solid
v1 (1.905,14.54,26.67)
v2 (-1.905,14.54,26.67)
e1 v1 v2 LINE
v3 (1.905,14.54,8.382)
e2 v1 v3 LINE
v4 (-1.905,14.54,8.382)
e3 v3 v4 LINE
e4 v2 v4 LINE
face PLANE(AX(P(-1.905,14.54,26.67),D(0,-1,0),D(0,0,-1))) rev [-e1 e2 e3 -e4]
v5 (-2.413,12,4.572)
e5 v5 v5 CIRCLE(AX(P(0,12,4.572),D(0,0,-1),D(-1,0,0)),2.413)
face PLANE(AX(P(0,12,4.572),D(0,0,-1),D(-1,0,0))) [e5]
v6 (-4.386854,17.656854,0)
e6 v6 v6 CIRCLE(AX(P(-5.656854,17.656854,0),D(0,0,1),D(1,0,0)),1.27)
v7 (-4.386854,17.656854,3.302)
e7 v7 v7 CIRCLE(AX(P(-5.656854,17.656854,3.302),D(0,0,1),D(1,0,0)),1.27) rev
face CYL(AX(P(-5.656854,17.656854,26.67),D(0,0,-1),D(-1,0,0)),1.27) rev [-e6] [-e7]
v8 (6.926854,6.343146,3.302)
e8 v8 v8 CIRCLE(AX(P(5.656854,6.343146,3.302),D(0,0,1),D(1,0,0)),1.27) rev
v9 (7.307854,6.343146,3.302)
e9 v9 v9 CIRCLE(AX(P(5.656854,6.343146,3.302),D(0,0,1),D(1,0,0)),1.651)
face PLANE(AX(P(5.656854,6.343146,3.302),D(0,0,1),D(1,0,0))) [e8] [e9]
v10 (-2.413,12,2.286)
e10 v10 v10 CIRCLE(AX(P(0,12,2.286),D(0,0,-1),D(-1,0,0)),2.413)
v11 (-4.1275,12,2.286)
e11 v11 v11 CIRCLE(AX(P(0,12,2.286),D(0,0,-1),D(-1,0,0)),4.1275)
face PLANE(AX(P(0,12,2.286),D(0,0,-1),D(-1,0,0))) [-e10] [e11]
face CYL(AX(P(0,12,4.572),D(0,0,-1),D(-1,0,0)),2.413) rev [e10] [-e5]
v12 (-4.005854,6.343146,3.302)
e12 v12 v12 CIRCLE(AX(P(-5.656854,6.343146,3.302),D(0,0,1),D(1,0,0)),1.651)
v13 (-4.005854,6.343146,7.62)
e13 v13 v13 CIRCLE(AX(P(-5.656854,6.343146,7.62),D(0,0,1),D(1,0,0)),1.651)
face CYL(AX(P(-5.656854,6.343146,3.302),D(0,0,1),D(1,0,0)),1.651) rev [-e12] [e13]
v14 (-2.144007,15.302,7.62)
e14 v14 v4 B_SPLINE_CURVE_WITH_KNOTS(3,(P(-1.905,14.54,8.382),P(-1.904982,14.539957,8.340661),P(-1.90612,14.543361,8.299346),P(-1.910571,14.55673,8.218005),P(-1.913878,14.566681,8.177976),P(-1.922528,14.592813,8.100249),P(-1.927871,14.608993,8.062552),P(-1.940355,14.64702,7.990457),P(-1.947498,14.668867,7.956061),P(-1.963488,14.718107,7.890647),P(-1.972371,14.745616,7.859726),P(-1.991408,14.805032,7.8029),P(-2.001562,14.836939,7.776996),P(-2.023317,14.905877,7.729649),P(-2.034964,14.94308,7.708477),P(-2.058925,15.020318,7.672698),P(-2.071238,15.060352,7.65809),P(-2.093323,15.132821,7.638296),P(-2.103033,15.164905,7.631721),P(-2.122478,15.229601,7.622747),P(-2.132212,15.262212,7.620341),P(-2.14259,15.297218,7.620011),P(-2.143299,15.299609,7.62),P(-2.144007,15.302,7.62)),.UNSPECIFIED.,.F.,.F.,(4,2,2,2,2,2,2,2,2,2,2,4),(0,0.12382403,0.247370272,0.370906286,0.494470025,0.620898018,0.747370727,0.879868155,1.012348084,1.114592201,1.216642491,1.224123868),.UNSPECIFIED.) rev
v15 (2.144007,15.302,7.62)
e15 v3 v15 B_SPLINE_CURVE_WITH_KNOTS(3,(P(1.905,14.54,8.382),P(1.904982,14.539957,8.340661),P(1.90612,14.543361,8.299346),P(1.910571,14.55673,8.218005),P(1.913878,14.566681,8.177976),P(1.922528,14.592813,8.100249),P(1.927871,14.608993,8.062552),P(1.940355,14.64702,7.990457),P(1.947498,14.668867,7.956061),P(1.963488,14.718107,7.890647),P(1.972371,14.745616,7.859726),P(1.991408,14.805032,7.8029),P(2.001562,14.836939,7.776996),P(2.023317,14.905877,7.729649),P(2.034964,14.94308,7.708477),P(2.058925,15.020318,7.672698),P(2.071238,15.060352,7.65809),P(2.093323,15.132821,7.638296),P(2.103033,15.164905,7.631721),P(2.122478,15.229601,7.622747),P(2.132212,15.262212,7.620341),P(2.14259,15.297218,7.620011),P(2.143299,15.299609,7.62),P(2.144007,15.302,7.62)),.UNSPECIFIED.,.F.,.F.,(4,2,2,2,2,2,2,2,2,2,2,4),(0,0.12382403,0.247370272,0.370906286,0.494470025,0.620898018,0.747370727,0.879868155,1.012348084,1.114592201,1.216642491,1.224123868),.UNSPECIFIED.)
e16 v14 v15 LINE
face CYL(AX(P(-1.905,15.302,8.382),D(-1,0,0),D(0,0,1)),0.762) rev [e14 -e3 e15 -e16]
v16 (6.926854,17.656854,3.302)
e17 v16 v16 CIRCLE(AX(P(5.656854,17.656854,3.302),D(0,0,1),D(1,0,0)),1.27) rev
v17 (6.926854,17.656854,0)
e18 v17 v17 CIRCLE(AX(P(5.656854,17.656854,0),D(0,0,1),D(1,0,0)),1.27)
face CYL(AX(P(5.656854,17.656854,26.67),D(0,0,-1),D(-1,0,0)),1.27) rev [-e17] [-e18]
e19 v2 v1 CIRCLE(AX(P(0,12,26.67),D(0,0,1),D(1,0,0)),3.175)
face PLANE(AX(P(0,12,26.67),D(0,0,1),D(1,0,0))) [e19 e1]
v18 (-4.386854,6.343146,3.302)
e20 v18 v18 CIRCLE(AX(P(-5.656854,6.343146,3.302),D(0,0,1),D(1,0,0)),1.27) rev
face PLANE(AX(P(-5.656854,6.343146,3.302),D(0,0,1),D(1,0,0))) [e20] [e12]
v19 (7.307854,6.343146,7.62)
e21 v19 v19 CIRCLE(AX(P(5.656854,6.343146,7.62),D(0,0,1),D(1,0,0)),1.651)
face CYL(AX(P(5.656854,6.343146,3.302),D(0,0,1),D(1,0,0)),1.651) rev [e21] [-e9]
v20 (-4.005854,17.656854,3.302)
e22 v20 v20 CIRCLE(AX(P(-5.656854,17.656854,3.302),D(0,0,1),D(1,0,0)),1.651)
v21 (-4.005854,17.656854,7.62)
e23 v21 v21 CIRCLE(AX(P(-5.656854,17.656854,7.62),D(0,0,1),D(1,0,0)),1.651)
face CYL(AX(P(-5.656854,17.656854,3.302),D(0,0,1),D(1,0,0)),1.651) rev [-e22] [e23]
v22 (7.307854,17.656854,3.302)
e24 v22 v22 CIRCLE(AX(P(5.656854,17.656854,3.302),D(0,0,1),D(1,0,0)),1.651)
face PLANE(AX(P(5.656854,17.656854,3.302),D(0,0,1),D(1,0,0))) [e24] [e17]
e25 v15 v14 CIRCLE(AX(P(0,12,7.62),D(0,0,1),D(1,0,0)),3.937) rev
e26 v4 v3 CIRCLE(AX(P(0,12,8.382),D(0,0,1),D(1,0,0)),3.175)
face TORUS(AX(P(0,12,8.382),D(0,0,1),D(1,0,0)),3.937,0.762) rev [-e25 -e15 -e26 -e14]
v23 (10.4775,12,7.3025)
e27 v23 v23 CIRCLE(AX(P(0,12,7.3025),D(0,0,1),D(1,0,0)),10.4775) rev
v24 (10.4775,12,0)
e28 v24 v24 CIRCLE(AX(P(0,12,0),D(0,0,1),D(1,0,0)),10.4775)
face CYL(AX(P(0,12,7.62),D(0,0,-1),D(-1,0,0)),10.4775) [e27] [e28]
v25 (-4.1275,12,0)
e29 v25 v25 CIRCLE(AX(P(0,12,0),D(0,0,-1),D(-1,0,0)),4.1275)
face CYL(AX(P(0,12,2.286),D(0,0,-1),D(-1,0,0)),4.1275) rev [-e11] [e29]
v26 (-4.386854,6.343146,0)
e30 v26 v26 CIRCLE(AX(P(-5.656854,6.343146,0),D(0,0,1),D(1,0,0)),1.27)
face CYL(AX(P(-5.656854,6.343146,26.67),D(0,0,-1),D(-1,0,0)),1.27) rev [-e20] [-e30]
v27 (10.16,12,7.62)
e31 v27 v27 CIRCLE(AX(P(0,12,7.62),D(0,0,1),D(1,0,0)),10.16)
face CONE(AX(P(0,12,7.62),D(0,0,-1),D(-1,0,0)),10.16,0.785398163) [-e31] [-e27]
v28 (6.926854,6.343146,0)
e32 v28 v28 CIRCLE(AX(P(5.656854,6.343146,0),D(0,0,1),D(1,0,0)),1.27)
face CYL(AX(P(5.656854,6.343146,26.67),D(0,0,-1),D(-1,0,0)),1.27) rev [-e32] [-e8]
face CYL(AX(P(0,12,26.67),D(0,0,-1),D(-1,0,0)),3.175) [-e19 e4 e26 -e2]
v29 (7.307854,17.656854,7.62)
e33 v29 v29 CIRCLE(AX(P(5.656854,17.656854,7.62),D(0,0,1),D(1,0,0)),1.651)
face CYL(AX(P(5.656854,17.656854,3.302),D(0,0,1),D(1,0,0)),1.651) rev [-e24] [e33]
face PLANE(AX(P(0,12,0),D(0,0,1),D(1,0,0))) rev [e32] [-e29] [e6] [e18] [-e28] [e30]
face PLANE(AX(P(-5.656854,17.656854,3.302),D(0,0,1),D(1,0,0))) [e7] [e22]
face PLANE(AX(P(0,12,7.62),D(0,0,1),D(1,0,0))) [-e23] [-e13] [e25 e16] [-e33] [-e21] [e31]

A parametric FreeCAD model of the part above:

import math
import FreeCAD as App
import Part
import Sketcher
Q = App.Units.Quantity


def edges_at(feature, points):
    """Names of the edges that pass closest to the given points."""
    edges = feature.Shape.Edges
    near = lambda p: min(range(len(edges)), key=lambda i: edges[i].distToShape(Part.Vertex(*p))[0])
    return sorted({f"Edge{near(p) + 1}" for p in points})

doc = App.newDocument("Part")
body = doc.addObject("PartDesign::Body", "Body")

sketch1 = body.newObject("Sketcher::SketchObject", "Sketch")
sketch1.AttachmentSupport = (doc.getObject("XY_Plane"), [""])
sketch1.MapMode = "FlatFace"
sketch1.addGeometry(Part.Circle(App.Vector(0, 12, 0), App.Vector(0, 0, 1), 10), False)
sketch1.addConstraint([
    Sketcher.Constraint("PointOnObject", 0, 3, -2),
    Sketcher.Constraint("Diameter", 0, Q("0.825 in")),
    Sketcher.Constraint("DistanceY", -1, 1, 0, 3, Q("12 mm")),
])
pad1 = body.newObject("PartDesign::Pad", "Pad")
pad1.Profile = sketch1
pad1.Length = Q("0.3 in")

sketch2 = body.newObject("Sketcher::SketchObject", "Sketch001")
sketch2.AttachmentSupport = (doc.getObject("XY_Plane"), [""])
sketch2.MapMode = "FlatFace"
sketch2.addGeometry(Part.Circle(App.Vector(0, 12, 0), App.Vector(0, 0, 1), 4.1), False)
sketch2.addConstraint([
    Sketcher.Constraint("PointOnObject", 0, 3, -2),
    Sketcher.Constraint("Diameter", 0, Q("0.325 in")),
    Sketcher.Constraint("DistanceY", -1, 1, 0, 3, Q("12 mm")),
])
pocket1 = body.newObject("PartDesign::Pocket", "Pocket")
pocket1.Profile = sketch2
pocket1.Length = Q("0.09 in")
pocket1.Reversed = True

sketch3 = body.newObject("Sketcher::SketchObject", "Sketch002")
sketch3.AttachmentSupport = (doc.getObject("XY_Plane"), [""])
sketch3.MapMode = "FlatFace"
sketch3.AttachmentOffset = App.Placement(App.Vector(0, 0, 0.09 * 25.4), App.Rotation())
sketch3.addGeometry(Part.Circle(App.Vector(0, 12, 0), App.Vector(0, 0, 1), 2.4), False)
sketch3.addConstraint([
    Sketcher.Constraint("PointOnObject", 0, 3, -2),
    Sketcher.Constraint("Diameter", 0, Q("0.19 in")),
    Sketcher.Constraint("DistanceY", -1, 1, 0, 3, Q("12 mm")),
])
pocket2 = body.newObject("PartDesign::Pocket", "Pocket001")
pocket2.Profile = sketch3
pocket2.Length = Q("0.09 in")
pocket2.Reversed = True

sketch4 = body.newObject("Sketcher::SketchObject", "Sketch003")
sketch4.AttachmentSupport = (doc.getObject("XY_Plane"), [""])
sketch4.MapMode = "FlatFace"
sketch4.AttachmentOffset = App.Placement(App.Vector(0, 0, 0.3 * 25.4), App.Rotation())
sketch4.addGeometry([
    Part.LineSegment(App.Vector(1.9, 14.5, 0), App.Vector(-1.9, 14.5, 0)),
    Part.ArcOfCircle(Part.Circle(App.Vector(0, 12, 0), App.Vector(0, 0, 1), 3.2), math.radians(127), math.radians(413)),
], False)
sketch4.addConstraint([
    Sketcher.Constraint("Coincident", 0, 1, 1, 2),
    Sketcher.Constraint("Coincident", 1, 1, 0, 2),
    Sketcher.Constraint("Horizontal", 0),
    Sketcher.Constraint("PointOnObject", 1, 3, -2),
    Sketcher.Constraint("Radius", 1, Q("0.125 in")),
    Sketcher.Constraint("DistanceX", 0, 2, 0, 1, Q("0.15 in")),
    Sketcher.Constraint("DistanceY", -1, 1, 1, 3, Q("12 mm")),
])
pad2 = body.newObject("PartDesign::Pad", "Pad001")
pad2.Profile = sketch4
pad2.Length = Q("0.75 in")

sketch5 = body.newObject("Sketcher::SketchObject", "Sketch004")
sketch5.AttachmentSupport = (doc.getObject("XY_Plane"), [""])
sketch5.MapMode = "FlatFace"
sketch5.addGeometry([
    Part.Circle(App.Vector(5.7, 17.7, 0), App.Vector(0, 0, 1), 1.3),
    Part.Circle(App.Vector(-5.7, 17.7, 0), App.Vector(0, 0, 1), 1.3),
    Part.Circle(App.Vector(-5.7, 6.3, 0), App.Vector(0, 0, 1), 1.3),
    Part.Circle(App.Vector(5.7, 6.3, 0), App.Vector(0, 0, 1), 1.3),
], False)
sketch5.addConstraint([
    Sketcher.Constraint("Equal", 0, 1),
    Sketcher.Constraint("Equal", 1, 2),
    Sketcher.Constraint("Equal", 2, 3),
    Sketcher.Constraint("Symmetric", 0, 3, 1, 3, -2),
    Sketcher.Constraint("Symmetric", 2, 3, 3, 3, -2),
    Sketcher.Constraint("Vertical", 1, 3, 2, 3),
    Sketcher.Constraint("Diameter", 0, Q("0.1 in")),
    Sketcher.Constraint("DistanceX", 1, 3, 0, 3, Q("11.313708 mm")),
    Sketcher.Constraint("DistanceY", 2, 3, 1, 3, Q("11.313708 mm")),
    Sketcher.Constraint("DistanceY", -1, 1, 0, 3, Q("17.656854 mm")),
])
pocket3 = body.newObject("PartDesign::Pocket", "Pocket002")
pocket3.Profile = sketch5
pocket3.Type = "ThroughAll"
pocket3.Midplane = True

sketch6 = body.newObject("Sketcher::SketchObject", "Sketch005")
sketch6.AttachmentSupport = (doc.getObject("XY_Plane"), [""])
sketch6.MapMode = "FlatFace"
sketch6.AttachmentOffset = App.Placement(App.Vector(0, 0, 0.3 * 25.4), App.Rotation())
sketch6.addGeometry([
    Part.Circle(App.Vector(-5.7, 17.7, 0), App.Vector(0, 0, 1), 1.7),
    Part.Circle(App.Vector(5.7, 17.7, 0), App.Vector(0, 0, 1), 1.7),
    Part.Circle(App.Vector(5.7, 6.3, 0), App.Vector(0, 0, 1), 1.7),
    Part.Circle(App.Vector(-5.7, 6.3, 0), App.Vector(0, 0, 1), 1.7),
], False)
sketch6.addConstraint([
    Sketcher.Constraint("Equal", 0, 1),
    Sketcher.Constraint("Equal", 1, 2),
    Sketcher.Constraint("Equal", 2, 3),
    Sketcher.Constraint("Symmetric", 0, 3, 1, 3, -2),
    Sketcher.Constraint("Symmetric", 2, 3, 3, 3, -2),
    Sketcher.Constraint("Vertical", 1, 3, 2, 3),
    Sketcher.Constraint("Diameter", 0, Q("0.13 in")),
    Sketcher.Constraint("DistanceX", 0, 3, 1, 3, Q("11.313708 mm")),
    Sketcher.Constraint("DistanceY", 2, 3, 1, 3, Q("11.313708 mm")),
    Sketcher.Constraint("DistanceY", -1, 1, 0, 3, Q("17.656854 mm")),
])
pocket4 = body.newObject("PartDesign::Pocket", "Pocket003")
pocket4.Profile = sketch6
pocket4.Length = Q("0.17 in")
doc.recompute()

chamfer = body.newObject("PartDesign::Chamfer", "Chamfer")
chamfer.Base = (pocket4, edges_at(pocket4, [(-10.477, 12, 7.62)]))
chamfer.Size = Q("0.0125 in")
doc.recompute()

fillet = body.newObject("PartDesign::Fillet", "Fillet")
fillet.Base = (chamfer, edges_at(chamfer, [(0, 8.825, 7.62), (0, 14.54, 7.62)]))
fillet.Radius = Q("0.03 in")

doc.recompute()
